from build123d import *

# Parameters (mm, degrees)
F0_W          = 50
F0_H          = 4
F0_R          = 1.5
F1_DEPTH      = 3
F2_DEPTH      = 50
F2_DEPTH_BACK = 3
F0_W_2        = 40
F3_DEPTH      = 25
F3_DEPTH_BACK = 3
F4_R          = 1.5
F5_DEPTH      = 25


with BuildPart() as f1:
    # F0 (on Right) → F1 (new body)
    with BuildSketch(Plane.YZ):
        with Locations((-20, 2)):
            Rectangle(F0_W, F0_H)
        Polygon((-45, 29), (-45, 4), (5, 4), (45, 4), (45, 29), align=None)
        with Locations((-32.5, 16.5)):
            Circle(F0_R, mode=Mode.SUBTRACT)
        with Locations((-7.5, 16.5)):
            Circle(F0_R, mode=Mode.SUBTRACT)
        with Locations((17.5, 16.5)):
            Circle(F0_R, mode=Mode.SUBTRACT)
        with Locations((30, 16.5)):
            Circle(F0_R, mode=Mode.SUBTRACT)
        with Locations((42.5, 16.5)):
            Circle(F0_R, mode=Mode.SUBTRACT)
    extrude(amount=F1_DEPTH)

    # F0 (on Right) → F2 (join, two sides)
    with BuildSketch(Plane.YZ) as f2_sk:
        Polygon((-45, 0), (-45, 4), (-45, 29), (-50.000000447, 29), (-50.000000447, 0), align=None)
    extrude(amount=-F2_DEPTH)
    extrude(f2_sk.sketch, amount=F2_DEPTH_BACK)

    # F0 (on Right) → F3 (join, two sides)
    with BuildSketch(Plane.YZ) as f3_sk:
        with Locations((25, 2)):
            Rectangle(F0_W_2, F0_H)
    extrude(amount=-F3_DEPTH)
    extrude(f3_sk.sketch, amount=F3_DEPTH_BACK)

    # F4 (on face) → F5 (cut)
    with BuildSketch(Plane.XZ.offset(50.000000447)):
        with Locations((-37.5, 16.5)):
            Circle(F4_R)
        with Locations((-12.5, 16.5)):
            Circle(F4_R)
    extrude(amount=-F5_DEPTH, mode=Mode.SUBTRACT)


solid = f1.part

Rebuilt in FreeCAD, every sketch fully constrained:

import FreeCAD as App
import Part
import Sketcher

doc = App.newDocument("Part")
params = doc.addObject("Spreadsheet::Sheet", "Params")
for row, (alias, value) in enumerate([
    ("sketch1_diameter", "3 mm"),
    ("sketch1_width", "50 mm"),
    ("sketch1_width2", "40 mm"),
    ("sketch1_height", "4 mm"),
    ("sketch1_height2", "25 mm"),
    ("pad1_length", "3 mm"),
    ("sketch2_width", "5 mm"),
    ("sketch2_height", "29 mm"),
    ("pad2_length", "50 mm"),
    ("pad2_length2", "3 mm"),
    ("sketch3_width", "40 mm"),
    ("sketch3_height", "4 mm"),
    ("pad3_length", "25 mm"),
    ("pad3_length2", "3 mm"),
    ("sketch4_diameter", "3 mm"),
    ("pocket1_length", "25 mm"),
], start=1):
    params.set(f"A{row}", alias)
    params.set(f"B{row}", "=" + value)
    params.setAlias(f"B{row}", alias)

body = doc.addObject("PartDesign::Body", "Body")

sketch1 = doc.addObject("Sketcher::SketchObject", "Sketch")
body.addObject(sketch1)
sketch1.AttachmentSupport = (doc.YZ_Plane, [""])
sketch1.MapMode = "FlatFace"
sketch1.addGeometry([
    Part.LineSegment(App.Vector(-45, 0, 0), App.Vector(5, 0, 0)),
    Part.LineSegment(App.Vector(5, 0, 0), App.Vector(5, 4, 0)),
    Part.LineSegment(App.Vector(5, 4, 0), App.Vector(45, 4, 0)),
    Part.LineSegment(App.Vector(45, 4, 0), App.Vector(45, 29, 0)),
    Part.LineSegment(App.Vector(45, 29, 0), App.Vector(-45, 29, 0)),
    Part.LineSegment(App.Vector(-45, 29, 0), App.Vector(-45, 0, 0)),
    Part.Circle(App.Vector(-32.5, 16.5, 0), App.Vector(0, 0, 1), 1.5),
    Part.Circle(App.Vector(-7.5, 16.5, 0), App.Vector(0, 0, 1), 1.5),
    Part.Circle(App.Vector(17.5, 16.5, 0), App.Vector(0, 0, 1), 1.5),
    Part.Circle(App.Vector(30, 16.5, 0), App.Vector(0, 0, 1), 1.5),
    Part.Circle(App.Vector(42.5, 16.5, 0), App.Vector(0, 0, 1), 1.5),
], False)
sketch1.addConstraint([
    Sketcher.Constraint("Coincident", 0, 2, 1, 1),
    Sketcher.Constraint("Coincident", 1, 2, 2, 1),
    Sketcher.Constraint("Coincident", 2, 2, 3, 1),
    Sketcher.Constraint("Coincident", 3, 2, 4, 1),
    Sketcher.Constraint("Coincident", 4, 2, 5, 1),
    Sketcher.Constraint("Coincident", 5, 2, 0, 1),
    Sketcher.Constraint("Horizontal", 0),
    Sketcher.Constraint("Vertical", 1),
    Sketcher.Constraint("Horizontal", 2),
    Sketcher.Constraint("Vertical", 3),
    Sketcher.Constraint("Horizontal", 4),
    Sketcher.Constraint("Vertical", 5),
    Sketcher.Constraint("Equal", 6, 7),
    Sketcher.Constraint("Equal", 7, 8),
    Sketcher.Constraint("Equal", 8, 9),
    Sketcher.Constraint("Equal", 9, 10),
    Sketcher.Constraint("PointOnObject", 0, 2, -1),
    Sketcher.Constraint("Horizontal", 6, 3, 7, 3),
    Sketcher.Constraint("Horizontal", 7, 3, 8, 3),
    Sketcher.Constraint("Horizontal", 8, 3, 9, 3),
    Sketcher.Constraint("Horizontal", 9, 3, 10, 3),
    Sketcher.Constraint("Diameter", 6, 3.0),
    Sketcher.Constraint("DistanceX", 0, 1, 0, 2, 50.0),
    Sketcher.Constraint("DistanceX", 2, 1, 2, 2, 40.0),
    Sketcher.Constraint("DistanceY", 1, 1, 1, 2, 4.0),
    Sketcher.Constraint("DistanceY", 3, 1, 3, 2, 25.0),
    Sketcher.Constraint("DistanceX", -1, 1, 9, 3, 30.0),
    Sketcher.Constraint("DistanceX", -1, 1, 0, 2, 5.0),
    Sketcher.Constraint("DistanceX", 6, 3, 7, 3, 25.0),
    Sketcher.Constraint("DistanceX", 7, 3, 8, 3, 25.0),
    Sketcher.Constraint("DistanceX", 8, 3, 10, 3, 25.0),
    Sketcher.Constraint("DistanceX", 6, 3, -1, 1, 32.5),
    Sketcher.Constraint("DistanceY", -1, 1, 6, 3, 16.5),
])
sketch1.setExpression("Constraints[21]", "Params.sketch1_diameter")
sketch1.setExpression("Constraints[22]", "Params.sketch1_width")
sketch1.setExpression("Constraints[23]", "Params.sketch1_width2")
sketch1.setExpression("Constraints[24]", "Params.sketch1_height")
sketch1.setExpression("Constraints[25]", "Params.sketch1_height2")
pad1 = doc.addObject("PartDesign::Pad", "Pad")
body.addObject(pad1)
pad1.Profile = sketch1
pad1.setExpression("Length", "Params.pad1_length")

sketch2 = doc.addObject("Sketcher::SketchObject", "Sketch001")
body.addObject(sketch2)
sketch2.AttachmentSupport = (doc.YZ_Plane, [""])
sketch2.MapMode = "FlatFace"
sketch2.addGeometry([
    Part.LineSegment(App.Vector(-45, 0, 0), App.Vector(-45, 29, 0)),
    Part.LineSegment(App.Vector(-45, 29, 0), App.Vector(-50, 29, 0)),
    Part.LineSegment(App.Vector(-50, 29, 0), App.Vector(-50, 0, 0)),
    Part.LineSegment(App.Vector(-50, 0, 0), App.Vector(-45, 0, 0)),
], False)
sketch2.addConstraint([
    Sketcher.Constraint("Coincident", 0, 2, 1, 1),
    Sketcher.Constraint("Coincident", 1, 2, 2, 1),
    Sketcher.Constraint("Coincident", 2, 2, 3, 1),
    Sketcher.Constraint("Coincident", 3, 2, 0, 1),
    Sketcher.Constraint("Vertical", 0),
    Sketcher.Constraint("Horizontal", 1),
    Sketcher.Constraint("Vertical", 2),
    Sketcher.Constraint("Horizontal", 3),
    Sketcher.Constraint("PointOnObject", 2, 2, -1),
    Sketcher.Constraint("DistanceX", 1, 2, 1, 1, 5.0),
    Sketcher.Constraint("DistanceY", 0, 1, 0, 2, 29.0),
    Sketcher.Constraint("DistanceX", 0, 2, -1, 1, 45.0),
])
sketch2.setExpression("Constraints[9]", "Params.sketch2_width")
sketch2.setExpression("Constraints[10]", "Params.sketch2_height")
pad2 = doc.addObject("PartDesign::Pad", "Pad001")
body.addObject(pad2)
pad2.Profile = sketch2
pad2.Type = "TwoLengths"
pad2.setExpression("Length", "Params.pad2_length")
pad2.setExpression("Length2", "Params.pad2_length2")
pad2.Reversed = True

sketch3 = doc.addObject("Sketcher::SketchObject", "Sketch002")
body.addObject(sketch3)
sketch3.AttachmentSupport = (doc.YZ_Plane, [""])
sketch3.MapMode = "FlatFace"
sketch3.addGeometry([
    Part.LineSegment(App.Vector(5, 4, 0), App.Vector(5, 0, 0)),
    Part.LineSegment(App.Vector(5, 0, 0), App.Vector(45, 0, 0)),
    Part.LineSegment(App.Vector(45, 0, 0), App.Vector(45, 4, 0)),
    Part.LineSegment(App.Vector(45, 4, 0), App.Vector(5, 4, 0)),
], False)
sketch3.addConstraint([
    Sketcher.Constraint("Coincident", 0, 2, 1, 1),
    Sketcher.Constraint("Coincident", 1, 2, 2, 1),
    Sketcher.Constraint("Coincident", 2, 2, 3, 1),
    Sketcher.Constraint("Coincident", 3, 2, 0, 1),
    Sketcher.Constraint("Vertical", 0),
    Sketcher.Constraint("Horizontal", 1),
    Sketcher.Constraint("Vertical", 2),
    Sketcher.Constraint("Horizontal", 3),
    Sketcher.Constraint("PointOnObject", 0, 2, -1),
    Sketcher.Constraint("DistanceX", 1, 1, 1, 2, 40.0),
    Sketcher.Constraint("DistanceY", 0, 2, 0, 1, 4.0),
    Sketcher.Constraint("DistanceX", -1, 1, 0, 2, 5.0),
])
sketch3.setExpression("Constraints[9]", "Params.sketch3_width")
sketch3.setExpression("Constraints[10]", "Params.sketch3_height")
pad3 = doc.addObject("PartDesign::Pad", "Pad002")
body.addObject(pad3)
pad3.Profile = sketch3
pad3.Type = "TwoLengths"
pad3.setExpression("Length", "Params.pad3_length")
pad3.setExpression("Length2", "Params.pad3_length2")
pad3.Reversed = True

sketch4 = doc.addObject("Sketcher::SketchObject", "Sketch003")
body.addObject(sketch4)
sketch4.AttachmentSupport = (doc.XZ_Plane, [""])
sketch4.MapMode = "FlatFace"
sketch4.AttachmentOffset = App.Placement(App.Vector(0, 0, 50), App.Rotation())
sketch4.addGeometry([
    Part.Circle(App.Vector(-37.5, 16.5, 0), App.Vector(0, 0, 1), 1.5),
    Part.Circle(App.Vector(-12.5, 16.5, 0), App.Vector(0, 0, 1), 1.5),
], False)
sketch4.addConstraint([
    Sketcher.Constraint("Equal", 0, 1),
    Sketcher.Constraint("Horizontal", 0, 3, 1, 3),
    Sketcher.Constraint("Diameter", 0, 3.0),
    Sketcher.Constraint("DistanceX", 0, 3, 1, 3, 25.0),
    Sketcher.Constraint("DistanceX", 0, 3, -1, 1, 37.5),
    Sketcher.Constraint("DistanceY", -1, 1, 0, 3, 16.5),
])
sketch4.setExpression("Constraints[2]", "Params.sketch4_diameter")
pocket1 = doc.addObject("PartDesign::Pocket", "Pocket")
body.addObject(pocket1)
pocket1.Profile = sketch4
pocket1.setExpression("Length", "Params.pocket1_length")

doc.recompute()
